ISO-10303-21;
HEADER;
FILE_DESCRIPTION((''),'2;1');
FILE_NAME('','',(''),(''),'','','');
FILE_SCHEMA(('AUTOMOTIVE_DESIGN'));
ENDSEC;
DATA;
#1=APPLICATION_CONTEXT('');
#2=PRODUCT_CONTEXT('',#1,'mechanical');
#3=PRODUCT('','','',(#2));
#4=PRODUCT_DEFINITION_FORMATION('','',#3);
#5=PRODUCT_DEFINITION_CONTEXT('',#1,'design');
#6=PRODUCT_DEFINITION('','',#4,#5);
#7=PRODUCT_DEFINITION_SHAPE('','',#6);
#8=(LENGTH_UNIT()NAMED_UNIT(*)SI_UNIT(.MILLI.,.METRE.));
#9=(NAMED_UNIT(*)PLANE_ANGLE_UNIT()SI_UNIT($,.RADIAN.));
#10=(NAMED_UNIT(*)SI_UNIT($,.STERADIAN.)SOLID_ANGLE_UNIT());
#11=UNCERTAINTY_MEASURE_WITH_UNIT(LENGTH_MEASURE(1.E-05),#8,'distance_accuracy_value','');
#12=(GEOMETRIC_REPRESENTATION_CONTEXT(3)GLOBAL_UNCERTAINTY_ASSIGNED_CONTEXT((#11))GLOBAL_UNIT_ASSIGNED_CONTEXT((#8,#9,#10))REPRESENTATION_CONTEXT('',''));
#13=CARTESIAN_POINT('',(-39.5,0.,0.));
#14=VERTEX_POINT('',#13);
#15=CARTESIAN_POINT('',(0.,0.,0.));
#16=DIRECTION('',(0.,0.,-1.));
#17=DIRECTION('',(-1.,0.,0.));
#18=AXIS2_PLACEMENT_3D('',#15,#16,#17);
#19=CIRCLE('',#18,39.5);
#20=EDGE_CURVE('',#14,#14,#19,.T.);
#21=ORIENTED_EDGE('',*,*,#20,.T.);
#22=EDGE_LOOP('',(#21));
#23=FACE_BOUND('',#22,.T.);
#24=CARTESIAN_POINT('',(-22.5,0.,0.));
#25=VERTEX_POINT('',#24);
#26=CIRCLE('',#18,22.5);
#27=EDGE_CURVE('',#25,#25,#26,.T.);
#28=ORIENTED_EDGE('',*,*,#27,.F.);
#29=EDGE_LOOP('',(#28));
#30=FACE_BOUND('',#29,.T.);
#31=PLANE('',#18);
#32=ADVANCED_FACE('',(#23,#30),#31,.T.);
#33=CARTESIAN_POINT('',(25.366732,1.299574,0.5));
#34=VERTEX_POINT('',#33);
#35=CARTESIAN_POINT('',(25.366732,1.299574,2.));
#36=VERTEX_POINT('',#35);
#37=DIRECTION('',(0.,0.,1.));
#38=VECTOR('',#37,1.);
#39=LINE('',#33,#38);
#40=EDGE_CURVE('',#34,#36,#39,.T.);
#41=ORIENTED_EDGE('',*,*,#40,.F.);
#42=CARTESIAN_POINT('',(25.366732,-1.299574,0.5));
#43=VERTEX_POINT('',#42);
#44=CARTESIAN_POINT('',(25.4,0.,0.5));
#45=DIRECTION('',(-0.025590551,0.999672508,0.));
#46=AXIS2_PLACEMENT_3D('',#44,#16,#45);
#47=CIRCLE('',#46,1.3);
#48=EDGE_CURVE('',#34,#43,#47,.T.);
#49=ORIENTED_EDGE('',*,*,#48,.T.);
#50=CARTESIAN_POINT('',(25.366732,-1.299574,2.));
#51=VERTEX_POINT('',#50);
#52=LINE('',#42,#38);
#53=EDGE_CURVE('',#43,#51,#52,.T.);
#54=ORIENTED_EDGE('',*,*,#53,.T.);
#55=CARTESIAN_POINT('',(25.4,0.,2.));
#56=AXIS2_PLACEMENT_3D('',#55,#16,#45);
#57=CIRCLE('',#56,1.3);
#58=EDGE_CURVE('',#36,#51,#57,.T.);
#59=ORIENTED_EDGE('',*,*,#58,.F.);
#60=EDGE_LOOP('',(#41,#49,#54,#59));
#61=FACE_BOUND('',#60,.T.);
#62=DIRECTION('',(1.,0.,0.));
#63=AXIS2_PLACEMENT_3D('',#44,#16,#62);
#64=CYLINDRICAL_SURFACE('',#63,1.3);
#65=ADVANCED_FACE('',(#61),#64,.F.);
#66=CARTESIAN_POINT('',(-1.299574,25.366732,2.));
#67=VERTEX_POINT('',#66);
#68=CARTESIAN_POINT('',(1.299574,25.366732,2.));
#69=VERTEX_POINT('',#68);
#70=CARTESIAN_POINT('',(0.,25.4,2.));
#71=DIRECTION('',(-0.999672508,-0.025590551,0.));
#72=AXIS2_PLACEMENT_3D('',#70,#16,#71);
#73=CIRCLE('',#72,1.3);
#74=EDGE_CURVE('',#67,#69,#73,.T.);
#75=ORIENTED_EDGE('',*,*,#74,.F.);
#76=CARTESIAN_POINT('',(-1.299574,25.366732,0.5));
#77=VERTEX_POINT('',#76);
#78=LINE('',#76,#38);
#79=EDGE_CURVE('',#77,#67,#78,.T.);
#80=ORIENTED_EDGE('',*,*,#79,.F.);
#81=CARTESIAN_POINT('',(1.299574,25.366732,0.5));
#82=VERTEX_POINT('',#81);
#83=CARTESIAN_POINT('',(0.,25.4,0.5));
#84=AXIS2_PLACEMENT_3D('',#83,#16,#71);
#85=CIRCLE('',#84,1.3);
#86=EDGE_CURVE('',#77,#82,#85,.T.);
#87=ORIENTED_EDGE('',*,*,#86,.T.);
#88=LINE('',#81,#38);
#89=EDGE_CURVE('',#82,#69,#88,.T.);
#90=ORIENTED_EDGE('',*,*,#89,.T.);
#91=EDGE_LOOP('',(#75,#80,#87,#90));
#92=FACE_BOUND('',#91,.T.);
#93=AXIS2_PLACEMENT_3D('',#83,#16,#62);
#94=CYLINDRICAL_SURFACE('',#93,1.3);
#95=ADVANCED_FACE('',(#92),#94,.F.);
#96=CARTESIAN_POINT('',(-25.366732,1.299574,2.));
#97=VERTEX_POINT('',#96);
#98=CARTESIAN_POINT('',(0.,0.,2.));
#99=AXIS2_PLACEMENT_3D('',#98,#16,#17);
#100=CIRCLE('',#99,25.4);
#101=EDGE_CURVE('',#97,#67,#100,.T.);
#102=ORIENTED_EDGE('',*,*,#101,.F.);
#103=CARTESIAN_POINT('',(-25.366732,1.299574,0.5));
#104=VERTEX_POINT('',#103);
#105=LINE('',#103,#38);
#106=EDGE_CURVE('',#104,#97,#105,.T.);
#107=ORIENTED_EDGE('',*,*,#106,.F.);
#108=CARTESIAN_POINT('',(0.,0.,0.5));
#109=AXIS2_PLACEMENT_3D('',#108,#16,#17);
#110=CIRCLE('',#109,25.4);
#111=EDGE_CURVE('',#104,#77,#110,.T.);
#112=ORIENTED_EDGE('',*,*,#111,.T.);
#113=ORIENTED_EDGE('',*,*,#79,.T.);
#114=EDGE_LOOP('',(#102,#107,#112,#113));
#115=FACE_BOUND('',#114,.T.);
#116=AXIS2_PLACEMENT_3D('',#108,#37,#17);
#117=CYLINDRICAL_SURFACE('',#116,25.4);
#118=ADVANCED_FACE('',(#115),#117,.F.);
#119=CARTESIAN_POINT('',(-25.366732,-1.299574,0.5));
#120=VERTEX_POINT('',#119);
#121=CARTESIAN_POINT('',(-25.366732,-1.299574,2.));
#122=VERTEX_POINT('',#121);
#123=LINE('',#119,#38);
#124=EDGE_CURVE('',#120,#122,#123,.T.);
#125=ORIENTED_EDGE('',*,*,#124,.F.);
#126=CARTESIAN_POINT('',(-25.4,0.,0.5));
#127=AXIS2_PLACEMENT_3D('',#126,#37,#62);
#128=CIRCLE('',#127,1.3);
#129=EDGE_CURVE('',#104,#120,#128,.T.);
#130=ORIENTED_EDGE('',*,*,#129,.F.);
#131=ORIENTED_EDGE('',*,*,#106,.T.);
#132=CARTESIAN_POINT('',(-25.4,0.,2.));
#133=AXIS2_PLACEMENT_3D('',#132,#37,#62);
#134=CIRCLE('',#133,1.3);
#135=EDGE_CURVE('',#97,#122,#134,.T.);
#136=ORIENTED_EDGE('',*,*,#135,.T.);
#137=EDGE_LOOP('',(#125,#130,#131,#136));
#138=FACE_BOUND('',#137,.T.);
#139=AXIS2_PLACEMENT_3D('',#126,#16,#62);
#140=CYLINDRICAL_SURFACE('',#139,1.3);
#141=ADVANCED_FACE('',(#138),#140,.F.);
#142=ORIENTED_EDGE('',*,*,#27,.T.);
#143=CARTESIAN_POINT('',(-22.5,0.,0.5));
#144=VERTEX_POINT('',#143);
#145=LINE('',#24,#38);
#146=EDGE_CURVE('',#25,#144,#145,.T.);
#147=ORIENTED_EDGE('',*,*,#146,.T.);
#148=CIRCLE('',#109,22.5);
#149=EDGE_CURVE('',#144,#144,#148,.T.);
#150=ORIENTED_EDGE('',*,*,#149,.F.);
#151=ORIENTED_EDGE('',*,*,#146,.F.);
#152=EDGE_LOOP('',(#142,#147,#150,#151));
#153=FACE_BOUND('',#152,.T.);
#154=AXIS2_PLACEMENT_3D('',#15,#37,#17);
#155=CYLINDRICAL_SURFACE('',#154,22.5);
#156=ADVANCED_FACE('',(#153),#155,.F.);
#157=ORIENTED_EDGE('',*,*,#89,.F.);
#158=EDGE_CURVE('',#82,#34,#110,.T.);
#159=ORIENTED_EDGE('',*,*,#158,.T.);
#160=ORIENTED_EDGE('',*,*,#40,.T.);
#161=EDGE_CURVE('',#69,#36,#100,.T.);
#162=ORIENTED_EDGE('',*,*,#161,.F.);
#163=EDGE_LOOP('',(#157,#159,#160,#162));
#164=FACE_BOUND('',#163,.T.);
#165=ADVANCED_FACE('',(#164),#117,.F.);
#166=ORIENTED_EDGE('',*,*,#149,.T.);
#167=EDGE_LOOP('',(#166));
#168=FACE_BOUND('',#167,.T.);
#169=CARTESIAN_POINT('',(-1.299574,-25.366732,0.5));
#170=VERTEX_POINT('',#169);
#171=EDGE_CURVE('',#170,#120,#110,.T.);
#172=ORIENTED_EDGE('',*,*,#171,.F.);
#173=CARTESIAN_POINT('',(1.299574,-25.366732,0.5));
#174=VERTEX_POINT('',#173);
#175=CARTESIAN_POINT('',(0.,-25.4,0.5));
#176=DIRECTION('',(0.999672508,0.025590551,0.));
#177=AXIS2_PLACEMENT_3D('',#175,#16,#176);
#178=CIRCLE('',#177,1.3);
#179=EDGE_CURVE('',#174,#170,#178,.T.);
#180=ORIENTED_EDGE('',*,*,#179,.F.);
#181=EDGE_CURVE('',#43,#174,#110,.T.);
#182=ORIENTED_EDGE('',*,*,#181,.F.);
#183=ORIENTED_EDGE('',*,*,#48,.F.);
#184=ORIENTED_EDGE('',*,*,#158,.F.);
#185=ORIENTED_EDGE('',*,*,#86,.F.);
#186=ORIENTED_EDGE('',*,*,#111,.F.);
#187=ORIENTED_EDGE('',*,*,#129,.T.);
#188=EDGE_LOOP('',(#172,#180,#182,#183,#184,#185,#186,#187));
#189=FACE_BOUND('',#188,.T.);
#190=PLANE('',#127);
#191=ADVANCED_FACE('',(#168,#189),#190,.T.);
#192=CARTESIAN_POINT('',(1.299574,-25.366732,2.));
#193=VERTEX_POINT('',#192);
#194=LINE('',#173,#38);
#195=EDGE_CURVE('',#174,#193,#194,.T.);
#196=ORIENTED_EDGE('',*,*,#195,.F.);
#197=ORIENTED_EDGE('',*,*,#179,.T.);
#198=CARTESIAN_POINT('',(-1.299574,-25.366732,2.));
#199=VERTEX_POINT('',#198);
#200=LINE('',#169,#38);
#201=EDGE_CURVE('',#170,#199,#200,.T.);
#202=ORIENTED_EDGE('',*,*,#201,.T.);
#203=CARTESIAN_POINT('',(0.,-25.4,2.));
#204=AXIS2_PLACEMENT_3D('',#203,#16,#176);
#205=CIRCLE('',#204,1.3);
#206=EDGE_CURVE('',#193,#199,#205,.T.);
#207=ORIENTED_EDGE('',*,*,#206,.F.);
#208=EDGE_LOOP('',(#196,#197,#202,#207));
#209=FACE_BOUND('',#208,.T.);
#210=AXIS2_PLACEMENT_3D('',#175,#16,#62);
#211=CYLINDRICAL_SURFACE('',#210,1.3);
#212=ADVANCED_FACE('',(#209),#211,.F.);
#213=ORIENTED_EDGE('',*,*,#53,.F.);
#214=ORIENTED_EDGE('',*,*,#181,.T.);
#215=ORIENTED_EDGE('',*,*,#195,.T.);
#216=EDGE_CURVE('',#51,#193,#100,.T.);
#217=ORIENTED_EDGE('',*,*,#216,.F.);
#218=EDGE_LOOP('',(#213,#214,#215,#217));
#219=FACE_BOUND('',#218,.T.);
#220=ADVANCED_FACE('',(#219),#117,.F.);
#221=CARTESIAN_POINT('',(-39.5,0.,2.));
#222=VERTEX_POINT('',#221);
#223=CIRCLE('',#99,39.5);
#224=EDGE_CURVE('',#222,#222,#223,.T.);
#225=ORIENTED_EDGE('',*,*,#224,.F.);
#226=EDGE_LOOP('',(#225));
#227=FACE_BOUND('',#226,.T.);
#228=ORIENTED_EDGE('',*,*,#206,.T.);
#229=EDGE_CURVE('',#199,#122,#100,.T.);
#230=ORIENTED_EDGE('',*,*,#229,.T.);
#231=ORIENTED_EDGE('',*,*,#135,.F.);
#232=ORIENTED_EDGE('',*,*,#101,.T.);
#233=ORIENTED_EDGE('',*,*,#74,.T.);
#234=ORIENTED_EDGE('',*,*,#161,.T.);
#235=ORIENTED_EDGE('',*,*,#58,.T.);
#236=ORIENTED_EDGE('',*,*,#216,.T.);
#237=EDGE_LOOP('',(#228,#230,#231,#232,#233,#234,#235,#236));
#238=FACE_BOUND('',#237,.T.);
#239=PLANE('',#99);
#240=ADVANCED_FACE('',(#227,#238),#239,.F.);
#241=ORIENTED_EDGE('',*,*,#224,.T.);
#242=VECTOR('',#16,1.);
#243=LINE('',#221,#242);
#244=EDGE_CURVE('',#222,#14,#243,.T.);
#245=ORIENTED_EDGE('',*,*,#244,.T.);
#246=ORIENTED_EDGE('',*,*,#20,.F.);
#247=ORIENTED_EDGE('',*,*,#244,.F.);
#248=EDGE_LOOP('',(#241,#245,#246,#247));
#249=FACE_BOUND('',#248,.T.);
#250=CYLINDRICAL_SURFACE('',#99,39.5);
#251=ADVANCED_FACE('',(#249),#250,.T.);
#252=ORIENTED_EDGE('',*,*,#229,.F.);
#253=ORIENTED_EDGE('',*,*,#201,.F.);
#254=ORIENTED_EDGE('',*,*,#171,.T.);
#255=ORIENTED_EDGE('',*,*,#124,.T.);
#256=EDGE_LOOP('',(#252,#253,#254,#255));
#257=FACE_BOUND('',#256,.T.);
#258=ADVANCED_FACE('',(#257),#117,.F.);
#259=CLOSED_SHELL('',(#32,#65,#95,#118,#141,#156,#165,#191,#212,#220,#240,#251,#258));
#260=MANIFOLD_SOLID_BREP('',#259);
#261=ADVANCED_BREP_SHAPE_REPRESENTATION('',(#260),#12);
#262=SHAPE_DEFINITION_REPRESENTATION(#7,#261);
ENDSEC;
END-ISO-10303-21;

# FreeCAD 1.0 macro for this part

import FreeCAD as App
import Part
import Sketcher
from FreeCAD import Vector


def add_polygon(sketch, points):
    """Adds a closed chain of lines whose ends are joined by coincident constraints."""
    first, n = sketch.GeometryCount, len(points)
    for a, b in zip(points, points[1:] + points[:1]):
        sketch.addGeometry(Part.LineSegment(App.Vector(*a, 0), App.Vector(*b, 0)), False)
    for i in range(n):
        sketch.addConstraint(Sketcher.Constraint("Coincident", first + i, 2, first + (i + 1) % n, 1))

doc = App.newDocument("Part")
body = doc.addObject("PartDesign::Body", "Body")

sketch1 = doc.addObject("Sketcher::SketchObject", "Sketch")
body.addObject(sketch1)
sketch1.AttachmentSupport = (doc.XZ_Plane, [""])
sketch1.MapMode = "FlatFace"
add_polygon(sketch1, [(-39.5, 2), (-39.5, 0), (-22.5, 0), (-22.5, 0.5), (-25.4, 0.5), (-25.4, 2)])
sketch1.addConstraint(Sketcher.Constraint("Vertical", 0))
sketch1.addConstraint(Sketcher.Constraint("Horizontal", 1))
sketch1.addConstraint(Sketcher.Constraint("Vertical", 2))
sketch1.addConstraint(Sketcher.Constraint("Horizontal", 3))
sketch1.addConstraint(Sketcher.Constraint("Vertical", 4))
sketch1.addConstraint(Sketcher.Constraint("Horizontal", 5))
sketch1.addConstraint(Sketcher.Constraint("PointOnObject", 0, 2, -1))
sketch1.addConstraint(Sketcher.Constraint("DistanceX", 1, 1, 1, 2, 17.0))
sketch1.addConstraint(Sketcher.Constraint("DistanceY", 0, 2, 0, 1, 2.0))
sketch1.addConstraint(Sketcher.Constraint("DistanceX", 3, 2, 3, 1, 2.9))
sketch1.addConstraint(Sketcher.Constraint("DistanceY", 2, 1, 2, 2, 0.5))
sketch1.addConstraint(Sketcher.Constraint("DistanceX", 0, 2, -1, 1, 39.5))
revolution = doc.addObject("PartDesign::Revolution", "Revolution")
body.addObject(revolution)
revolution.Profile = sketch1
revolution.ReferenceAxis = (sketch1, ["V_Axis"])
revolution.Angle = 360

sketch2 = doc.addObject("Sketcher::SketchObject", "Sketch001")
body.addObject(sketch2)
sketch2.AttachmentSupport = (doc.XY_Plane, [""])
sketch2.MapMode = "FlatFace"
sketch2.AttachmentOffset = App.Placement(Vector(0, 0, 0.5), App.Rotation())
sketch2.addGeometry(Part.Circle(Vector(0, 25.4, 0), Vector(0, 0, 1), 1.3), False)
sketch2.addGeometry(Part.Circle(Vector(-25.4, 0, 0), Vector(0, 0, 1), 1.3), False)
sketch2.addGeometry(Part.Circle(Vector(0, -25.4, 0), Vector(0, 0, 1), 1.3), False)
sketch2.addGeometry(Part.Circle(Vector(25.4, 0, 0), Vector(0, 0, 1), 1.3), False)
sketch2.addConstraint(Sketcher.Constraint("Equal", 0, 1))
sketch2.addConstraint(Sketcher.Constraint("Equal", 1, 2))
sketch2.addConstraint(Sketcher.Constraint("Equal", 2, 3))
sketch2.addConstraint(Sketcher.Constraint("Symmetric", 0, 3, 2, 3, -1, 1))
sketch2.addConstraint(Sketcher.Constraint("Symmetric", 1, 3, 3, 3, -1, 1))
sketch2.addConstraint(Sketcher.Constraint("PointOnObject", 0, 3, -2))
sketch2.addConstraint(Sketcher.Constraint("PointOnObject", 1, 3, -1))
sketch2.addConstraint(Sketcher.Constraint("Diameter", 0, 2.6))
sketch2.addConstraint(Sketcher.Constraint("DistanceY", -1, 1, 0, 3, 25.4))
sketch2.addConstraint(Sketcher.Constraint("DistanceX", 1, 3, -1, 1, 25.4))
pocket1 = doc.addObject("PartDesign::Pocket", "Pocket")
body.addObject(pocket1)
pocket1.Profile = sketch2
pocket1.Length = 1.5
pocket1.Reversed = True

doc.recompute()
